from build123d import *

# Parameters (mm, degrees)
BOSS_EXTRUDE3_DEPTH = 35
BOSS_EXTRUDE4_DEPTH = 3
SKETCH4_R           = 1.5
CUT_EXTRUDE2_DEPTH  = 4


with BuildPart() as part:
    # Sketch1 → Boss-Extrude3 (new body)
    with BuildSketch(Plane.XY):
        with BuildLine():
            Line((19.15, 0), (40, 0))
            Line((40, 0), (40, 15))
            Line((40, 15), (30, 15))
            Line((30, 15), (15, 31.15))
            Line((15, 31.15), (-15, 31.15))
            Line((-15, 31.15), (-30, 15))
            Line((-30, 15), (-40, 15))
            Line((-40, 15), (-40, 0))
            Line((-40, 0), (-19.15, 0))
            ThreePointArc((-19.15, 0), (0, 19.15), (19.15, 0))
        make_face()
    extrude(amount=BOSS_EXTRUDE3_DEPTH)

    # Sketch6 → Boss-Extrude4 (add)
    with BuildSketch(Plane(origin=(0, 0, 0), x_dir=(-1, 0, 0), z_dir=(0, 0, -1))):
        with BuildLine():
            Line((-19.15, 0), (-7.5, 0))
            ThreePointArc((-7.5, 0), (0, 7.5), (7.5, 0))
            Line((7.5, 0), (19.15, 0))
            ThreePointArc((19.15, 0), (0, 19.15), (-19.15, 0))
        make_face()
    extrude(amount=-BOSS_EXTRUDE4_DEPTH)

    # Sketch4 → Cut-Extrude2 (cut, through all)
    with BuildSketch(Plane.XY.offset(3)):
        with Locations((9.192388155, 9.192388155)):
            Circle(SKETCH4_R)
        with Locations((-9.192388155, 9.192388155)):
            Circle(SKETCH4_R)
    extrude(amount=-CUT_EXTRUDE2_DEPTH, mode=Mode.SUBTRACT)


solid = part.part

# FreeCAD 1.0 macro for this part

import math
import FreeCAD as App
import Part
import Sketcher
Q = App.Units.Quantity

doc = App.newDocument("Part")
body = doc.addObject("PartDesign::Body", "Body")

sketch1 = body.newObject("Sketcher::SketchObject", "Sketch")
sketch1.AttachmentSupport = (doc.getObject("XY_Plane"), [""])
sketch1.MapMode = "FlatFace"
sketch1.addGeometry(Part.LineSegment(App.Vector(19, 0, 0), App.Vector(40, 0, 0)), False)
sketch1.addGeometry(Part.LineSegment(App.Vector(40, 0, 0), App.Vector(40, 15, 0)), False)
sketch1.addGeometry(Part.LineSegment(App.Vector(40, 15, 0), App.Vector(30, 15, 0)), False)
sketch1.addGeometry(Part.LineSegment(App.Vector(30, 15, 0), App.Vector(15, 31, 0)), False)
sketch1.addGeometry(Part.LineSegment(App.Vector(15, 31, 0), App.Vector(-15, 31, 0)), False)
sketch1.addGeometry(Part.LineSegment(App.Vector(-15, 31, 0), App.Vector(-30, 15, 0)), False)
sketch1.addGeometry(Part.LineSegment(App.Vector(-30, 15, 0), App.Vector(-40, 15, 0)), False)
sketch1.addGeometry(Part.LineSegment(App.Vector(-40, 15, 0), App.Vector(-40, 0, 0)), False)
sketch1.addGeometry(Part.LineSegment(App.Vector(-40, 0, 0), App.Vector(-19, 0, 0)), False)
sketch1.addGeometry(Part.ArcOfCircle(Part.Circle(App.Vector(0, 0, 0), App.Vector(0, 0, 1), 19), math.radians(0), math.radians(180)), False)
sketch1.addConstraint(Sketcher.Constraint("Coincident", 0, 2, 1, 1))
sketch1.addConstraint(Sketcher.Constraint("Coincident", 1, 2, 2, 1))
sketch1.addConstraint(Sketcher.Constraint("Coincident", 2, 2, 3, 1))
sketch1.addConstraint(Sketcher.Constraint("Coincident", 3, 2, 4, 1))
sketch1.addConstraint(Sketcher.Constraint("Coincident", 4, 2, 5, 1))
sketch1.addConstraint(Sketcher.Constraint("Coincident", 5, 2, 6, 1))
sketch1.addConstraint(Sketcher.Constraint("Coincident", 6, 2, 7, 1))
sketch1.addConstraint(Sketcher.Constraint("Coincident", 7, 2, 8, 1))
sketch1.addConstraint(Sketcher.Constraint("Coincident", 8, 2, 9, 2))
sketch1.addConstraint(Sketcher.Constraint("Coincident", 9, 1, 0, 1))
sketch1.addConstraint(Sketcher.Constraint("Horizontal", 0))
sketch1.addConstraint(Sketcher.Constraint("Vertical", 1))
sketch1.addConstraint(Sketcher.Constraint("Horizontal", 2))
sketch1.addConstraint(Sketcher.Constraint("Horizontal", 4))
sketch1.addConstraint(Sketcher.Constraint("Horizontal", 6))
sketch1.addConstraint(Sketcher.Constraint("Vertical", 7))
sketch1.addConstraint(Sketcher.Constraint("Horizontal", 8))
sketch1.addConstraint(Sketcher.Constraint("Coincident", 9, 3, -1, 1))
sketch1.addConstraint(Sketcher.Constraint("Symmetric", 0, 2, 7, 2, -1, 1))
sketch1.addConstraint(Sketcher.Constraint("Symmetric", 2, 2, 5, 2, -2))
sketch1.addConstraint(Sketcher.Constraint("PointOnObject", 0, 2, -1))
sketch1.addConstraint(Sketcher.Constraint("Equal", 3, 5))
sketch1.addConstraint(Sketcher.Constraint("DistanceX", 2, 2, 2, 1, Q("10 mm")))
sketch1.addConstraint(Sketcher.Constraint("DistanceX", 4, 2, 4, 1, Q("30 mm")))
sketch1.addConstraint(Sketcher.Constraint("DistanceY", 1, 1, 1, 2, Q("15 mm")))
sketch1.addConstraint(Sketcher.Constraint("Radius", 9, Q("19.15 mm")))
sketch1.addConstraint(Sketcher.Constraint("DistanceX", -1, 1, 0, 2, Q("40 mm")))
sketch1.addConstraint(Sketcher.Constraint("DistanceY", -1, 1, 3, 2, Q("31.15 mm")))
pad1 = body.newObject("PartDesign::Pad", "Pad")
pad1.Profile = sketch1
pad1.Length = 35

sketch2 = body.newObject("Sketcher::SketchObject", "Sketch001")
sketch2.AttachmentSupport = (doc.getObject("XY_Plane"), [""])
sketch2.MapMode = "FlatFace"
sketch2.addGeometry(Part.LineSegment(App.Vector(19, 0, 0), App.Vector(8, 0, 0)), False)
sketch2.addGeometry(Part.ArcOfCircle(Part.Circle(App.Vector(0, 0, 0), App.Vector(0, 0, 1), 8), math.radians(0), math.radians(180)), False)
sketch2.addGeometry(Part.LineSegment(App.Vector(-8, 0, 0), App.Vector(-19, 0, 0)), False)
sketch2.addGeometry(Part.ArcOfCircle(Part.Circle(App.Vector(0, 0, 0), App.Vector(0, 0, 1), 19), math.radians(0), math.radians(180)), False)
sketch2.addConstraint(Sketcher.Constraint("Coincident", 0, 2, 1, 1))
sketch2.addConstraint(Sketcher.Constraint("Coincident", 1, 2, 2, 1))
sketch2.addConstraint(Sketcher.Constraint("Coincident", 2, 2, 3, 2))
sketch2.addConstraint(Sketcher.Constraint("Coincident", 3, 1, 0, 1))
sketch2.addConstraint(Sketcher.Constraint("Horizontal", 0))
sketch2.addConstraint(Sketcher.Constraint("Horizontal", 2))
sketch2.addConstraint(Sketcher.Constraint("Coincident", 1, 3, -1, 1))
sketch2.addConstraint(Sketcher.Constraint("Coincident", 3, 3, -1, 1))
sketch2.addConstraint(Sketcher.Constraint("PointOnObject", 0, 2, -1))
sketch2.addConstraint(Sketcher.Constraint("PointOnObject", 1, 2, -1))
sketch2.addConstraint(Sketcher.Constraint("Radius", 1, Q("7.5 mm")))
sketch2.addConstraint(Sketcher.Constraint("Radius", 3, Q("19.15 mm")))
pad2 = body.newObject("PartDesign::Pad", "Pad001")
pad2.Profile = sketch2
pad2.Length = 3

sketch3 = body.newObject("Sketcher::SketchObject", "Sketch002")
sketch3.AttachmentSupport = (doc.getObject("XY_Plane"), [""])
sketch3.MapMode = "FlatFace"
sketch3.AttachmentOffset = App.Placement(App.Vector(0, 0, 3), App.Rotation())
sketch3.addGeometry(Part.Circle(App.Vector(9.2, 9.2, 0), App.Vector(0, 0, 1), 1.5), False)
sketch3.addGeometry(Part.Circle(App.Vector(-9.2, 9.2, 0), App.Vector(0, 0, 1), 1.5), False)
sketch3.addConstraint(Sketcher.Constraint("Equal", 0, 1))
sketch3.addConstraint(Sketcher.Constraint("Symmetric", 0, 3, 1, 3, -2))
sketch3.addConstraint(Sketcher.Constraint("Diameter", 0, Q("3 mm")))
sketch3.addConstraint(Sketcher.Constraint("DistanceX", -1, 1, 0, 3, Q("9.192388 mm")))
sketch3.addConstraint(Sketcher.Constraint("DistanceY", -1, 1, 0, 3, Q("9.192388 mm")))
pocket1 = body.newObject("PartDesign::Pocket", "Pocket")
pocket1.Profile = sketch3
pocket1.Type = "ThroughAll"

doc.recompute()
